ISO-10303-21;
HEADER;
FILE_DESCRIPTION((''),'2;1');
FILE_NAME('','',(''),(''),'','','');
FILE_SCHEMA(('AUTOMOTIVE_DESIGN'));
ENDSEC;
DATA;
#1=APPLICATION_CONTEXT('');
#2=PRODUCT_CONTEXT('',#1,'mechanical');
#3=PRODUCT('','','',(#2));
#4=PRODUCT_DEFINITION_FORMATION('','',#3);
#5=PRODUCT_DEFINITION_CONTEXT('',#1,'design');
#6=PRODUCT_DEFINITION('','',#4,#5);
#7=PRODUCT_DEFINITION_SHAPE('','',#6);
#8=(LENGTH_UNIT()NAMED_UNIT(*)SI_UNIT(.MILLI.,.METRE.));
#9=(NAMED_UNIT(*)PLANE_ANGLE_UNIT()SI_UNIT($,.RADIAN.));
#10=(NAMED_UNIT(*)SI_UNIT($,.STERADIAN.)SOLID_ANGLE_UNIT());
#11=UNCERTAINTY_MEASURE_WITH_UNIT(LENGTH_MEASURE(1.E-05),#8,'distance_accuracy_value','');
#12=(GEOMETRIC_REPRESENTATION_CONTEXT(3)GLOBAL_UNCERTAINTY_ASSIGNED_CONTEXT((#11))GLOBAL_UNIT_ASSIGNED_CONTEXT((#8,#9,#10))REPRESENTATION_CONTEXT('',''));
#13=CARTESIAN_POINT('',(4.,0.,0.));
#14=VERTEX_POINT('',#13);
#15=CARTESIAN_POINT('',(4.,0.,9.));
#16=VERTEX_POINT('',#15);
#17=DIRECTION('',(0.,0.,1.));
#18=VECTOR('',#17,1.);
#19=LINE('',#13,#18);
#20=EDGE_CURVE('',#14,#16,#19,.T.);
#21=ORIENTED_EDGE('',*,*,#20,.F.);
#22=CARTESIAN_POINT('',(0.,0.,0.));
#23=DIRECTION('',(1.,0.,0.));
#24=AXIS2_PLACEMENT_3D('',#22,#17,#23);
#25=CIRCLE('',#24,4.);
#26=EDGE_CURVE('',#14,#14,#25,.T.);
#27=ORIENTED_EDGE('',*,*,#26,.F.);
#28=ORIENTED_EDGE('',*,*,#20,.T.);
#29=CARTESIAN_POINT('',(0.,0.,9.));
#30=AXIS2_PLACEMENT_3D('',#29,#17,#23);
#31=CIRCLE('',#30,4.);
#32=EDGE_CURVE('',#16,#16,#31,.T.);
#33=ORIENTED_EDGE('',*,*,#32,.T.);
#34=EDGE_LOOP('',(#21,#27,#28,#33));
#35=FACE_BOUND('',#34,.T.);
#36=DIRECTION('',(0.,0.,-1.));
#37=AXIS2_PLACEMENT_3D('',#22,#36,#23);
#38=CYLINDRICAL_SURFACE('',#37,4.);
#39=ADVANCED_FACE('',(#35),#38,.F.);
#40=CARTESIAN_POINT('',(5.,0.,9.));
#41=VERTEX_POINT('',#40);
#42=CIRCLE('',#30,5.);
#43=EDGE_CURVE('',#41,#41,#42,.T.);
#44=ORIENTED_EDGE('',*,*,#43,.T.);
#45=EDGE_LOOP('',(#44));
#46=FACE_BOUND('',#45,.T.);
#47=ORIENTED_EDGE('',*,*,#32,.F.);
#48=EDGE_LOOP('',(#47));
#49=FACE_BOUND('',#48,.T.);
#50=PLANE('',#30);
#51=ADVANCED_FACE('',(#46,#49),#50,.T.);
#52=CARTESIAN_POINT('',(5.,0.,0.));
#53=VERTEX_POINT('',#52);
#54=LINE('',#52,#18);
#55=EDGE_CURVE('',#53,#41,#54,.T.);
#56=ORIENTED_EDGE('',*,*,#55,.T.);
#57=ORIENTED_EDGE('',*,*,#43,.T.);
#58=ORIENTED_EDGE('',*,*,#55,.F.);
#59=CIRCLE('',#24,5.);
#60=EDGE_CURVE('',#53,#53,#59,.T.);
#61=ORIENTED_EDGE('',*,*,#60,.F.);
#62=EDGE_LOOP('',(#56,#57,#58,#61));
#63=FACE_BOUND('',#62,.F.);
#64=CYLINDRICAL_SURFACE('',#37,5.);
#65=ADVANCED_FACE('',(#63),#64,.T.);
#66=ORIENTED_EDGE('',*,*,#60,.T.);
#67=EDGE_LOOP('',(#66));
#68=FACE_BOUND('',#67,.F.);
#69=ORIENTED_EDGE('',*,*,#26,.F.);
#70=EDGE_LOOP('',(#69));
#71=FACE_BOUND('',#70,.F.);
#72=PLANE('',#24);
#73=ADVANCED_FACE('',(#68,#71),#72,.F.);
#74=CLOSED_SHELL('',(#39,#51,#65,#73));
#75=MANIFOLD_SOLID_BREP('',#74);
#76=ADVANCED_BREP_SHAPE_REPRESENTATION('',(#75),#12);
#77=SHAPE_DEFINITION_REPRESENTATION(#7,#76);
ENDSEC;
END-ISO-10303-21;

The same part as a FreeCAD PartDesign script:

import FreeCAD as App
import Part
import Sketcher
from FreeCAD import Vector

doc = App.newDocument("Part")
body = doc.addObject("PartDesign::Body", "Body")

sketch1 = body.newObject("Sketcher::SketchObject", "Sketch")
sketch1.AttachmentSupport = (doc.getObject("XY_Plane"), [""])
sketch1.MapMode = "FlatFace"
sketch1.addGeometry([
    Part.Circle(Vector(0, 0, 0), Vector(0, 0, 1), 5),
    Part.Circle(Vector(0, 0, 0), Vector(0, 0, 1), 4),
], False)
sketch1.addConstraint([
    Sketcher.Constraint("Coincident", 0, 3, -1, 1),
    Sketcher.Constraint("Coincident", 1, 3, -1, 1),
    Sketcher.Constraint("Diameter", 0, 10.0),
    Sketcher.Constraint("Diameter", 1, 8.0),
])
pad1 = body.newObject("PartDesign::Pad", "Pad")
pad1.Profile = sketch1
pad1.Length = 9

doc.recompute()
